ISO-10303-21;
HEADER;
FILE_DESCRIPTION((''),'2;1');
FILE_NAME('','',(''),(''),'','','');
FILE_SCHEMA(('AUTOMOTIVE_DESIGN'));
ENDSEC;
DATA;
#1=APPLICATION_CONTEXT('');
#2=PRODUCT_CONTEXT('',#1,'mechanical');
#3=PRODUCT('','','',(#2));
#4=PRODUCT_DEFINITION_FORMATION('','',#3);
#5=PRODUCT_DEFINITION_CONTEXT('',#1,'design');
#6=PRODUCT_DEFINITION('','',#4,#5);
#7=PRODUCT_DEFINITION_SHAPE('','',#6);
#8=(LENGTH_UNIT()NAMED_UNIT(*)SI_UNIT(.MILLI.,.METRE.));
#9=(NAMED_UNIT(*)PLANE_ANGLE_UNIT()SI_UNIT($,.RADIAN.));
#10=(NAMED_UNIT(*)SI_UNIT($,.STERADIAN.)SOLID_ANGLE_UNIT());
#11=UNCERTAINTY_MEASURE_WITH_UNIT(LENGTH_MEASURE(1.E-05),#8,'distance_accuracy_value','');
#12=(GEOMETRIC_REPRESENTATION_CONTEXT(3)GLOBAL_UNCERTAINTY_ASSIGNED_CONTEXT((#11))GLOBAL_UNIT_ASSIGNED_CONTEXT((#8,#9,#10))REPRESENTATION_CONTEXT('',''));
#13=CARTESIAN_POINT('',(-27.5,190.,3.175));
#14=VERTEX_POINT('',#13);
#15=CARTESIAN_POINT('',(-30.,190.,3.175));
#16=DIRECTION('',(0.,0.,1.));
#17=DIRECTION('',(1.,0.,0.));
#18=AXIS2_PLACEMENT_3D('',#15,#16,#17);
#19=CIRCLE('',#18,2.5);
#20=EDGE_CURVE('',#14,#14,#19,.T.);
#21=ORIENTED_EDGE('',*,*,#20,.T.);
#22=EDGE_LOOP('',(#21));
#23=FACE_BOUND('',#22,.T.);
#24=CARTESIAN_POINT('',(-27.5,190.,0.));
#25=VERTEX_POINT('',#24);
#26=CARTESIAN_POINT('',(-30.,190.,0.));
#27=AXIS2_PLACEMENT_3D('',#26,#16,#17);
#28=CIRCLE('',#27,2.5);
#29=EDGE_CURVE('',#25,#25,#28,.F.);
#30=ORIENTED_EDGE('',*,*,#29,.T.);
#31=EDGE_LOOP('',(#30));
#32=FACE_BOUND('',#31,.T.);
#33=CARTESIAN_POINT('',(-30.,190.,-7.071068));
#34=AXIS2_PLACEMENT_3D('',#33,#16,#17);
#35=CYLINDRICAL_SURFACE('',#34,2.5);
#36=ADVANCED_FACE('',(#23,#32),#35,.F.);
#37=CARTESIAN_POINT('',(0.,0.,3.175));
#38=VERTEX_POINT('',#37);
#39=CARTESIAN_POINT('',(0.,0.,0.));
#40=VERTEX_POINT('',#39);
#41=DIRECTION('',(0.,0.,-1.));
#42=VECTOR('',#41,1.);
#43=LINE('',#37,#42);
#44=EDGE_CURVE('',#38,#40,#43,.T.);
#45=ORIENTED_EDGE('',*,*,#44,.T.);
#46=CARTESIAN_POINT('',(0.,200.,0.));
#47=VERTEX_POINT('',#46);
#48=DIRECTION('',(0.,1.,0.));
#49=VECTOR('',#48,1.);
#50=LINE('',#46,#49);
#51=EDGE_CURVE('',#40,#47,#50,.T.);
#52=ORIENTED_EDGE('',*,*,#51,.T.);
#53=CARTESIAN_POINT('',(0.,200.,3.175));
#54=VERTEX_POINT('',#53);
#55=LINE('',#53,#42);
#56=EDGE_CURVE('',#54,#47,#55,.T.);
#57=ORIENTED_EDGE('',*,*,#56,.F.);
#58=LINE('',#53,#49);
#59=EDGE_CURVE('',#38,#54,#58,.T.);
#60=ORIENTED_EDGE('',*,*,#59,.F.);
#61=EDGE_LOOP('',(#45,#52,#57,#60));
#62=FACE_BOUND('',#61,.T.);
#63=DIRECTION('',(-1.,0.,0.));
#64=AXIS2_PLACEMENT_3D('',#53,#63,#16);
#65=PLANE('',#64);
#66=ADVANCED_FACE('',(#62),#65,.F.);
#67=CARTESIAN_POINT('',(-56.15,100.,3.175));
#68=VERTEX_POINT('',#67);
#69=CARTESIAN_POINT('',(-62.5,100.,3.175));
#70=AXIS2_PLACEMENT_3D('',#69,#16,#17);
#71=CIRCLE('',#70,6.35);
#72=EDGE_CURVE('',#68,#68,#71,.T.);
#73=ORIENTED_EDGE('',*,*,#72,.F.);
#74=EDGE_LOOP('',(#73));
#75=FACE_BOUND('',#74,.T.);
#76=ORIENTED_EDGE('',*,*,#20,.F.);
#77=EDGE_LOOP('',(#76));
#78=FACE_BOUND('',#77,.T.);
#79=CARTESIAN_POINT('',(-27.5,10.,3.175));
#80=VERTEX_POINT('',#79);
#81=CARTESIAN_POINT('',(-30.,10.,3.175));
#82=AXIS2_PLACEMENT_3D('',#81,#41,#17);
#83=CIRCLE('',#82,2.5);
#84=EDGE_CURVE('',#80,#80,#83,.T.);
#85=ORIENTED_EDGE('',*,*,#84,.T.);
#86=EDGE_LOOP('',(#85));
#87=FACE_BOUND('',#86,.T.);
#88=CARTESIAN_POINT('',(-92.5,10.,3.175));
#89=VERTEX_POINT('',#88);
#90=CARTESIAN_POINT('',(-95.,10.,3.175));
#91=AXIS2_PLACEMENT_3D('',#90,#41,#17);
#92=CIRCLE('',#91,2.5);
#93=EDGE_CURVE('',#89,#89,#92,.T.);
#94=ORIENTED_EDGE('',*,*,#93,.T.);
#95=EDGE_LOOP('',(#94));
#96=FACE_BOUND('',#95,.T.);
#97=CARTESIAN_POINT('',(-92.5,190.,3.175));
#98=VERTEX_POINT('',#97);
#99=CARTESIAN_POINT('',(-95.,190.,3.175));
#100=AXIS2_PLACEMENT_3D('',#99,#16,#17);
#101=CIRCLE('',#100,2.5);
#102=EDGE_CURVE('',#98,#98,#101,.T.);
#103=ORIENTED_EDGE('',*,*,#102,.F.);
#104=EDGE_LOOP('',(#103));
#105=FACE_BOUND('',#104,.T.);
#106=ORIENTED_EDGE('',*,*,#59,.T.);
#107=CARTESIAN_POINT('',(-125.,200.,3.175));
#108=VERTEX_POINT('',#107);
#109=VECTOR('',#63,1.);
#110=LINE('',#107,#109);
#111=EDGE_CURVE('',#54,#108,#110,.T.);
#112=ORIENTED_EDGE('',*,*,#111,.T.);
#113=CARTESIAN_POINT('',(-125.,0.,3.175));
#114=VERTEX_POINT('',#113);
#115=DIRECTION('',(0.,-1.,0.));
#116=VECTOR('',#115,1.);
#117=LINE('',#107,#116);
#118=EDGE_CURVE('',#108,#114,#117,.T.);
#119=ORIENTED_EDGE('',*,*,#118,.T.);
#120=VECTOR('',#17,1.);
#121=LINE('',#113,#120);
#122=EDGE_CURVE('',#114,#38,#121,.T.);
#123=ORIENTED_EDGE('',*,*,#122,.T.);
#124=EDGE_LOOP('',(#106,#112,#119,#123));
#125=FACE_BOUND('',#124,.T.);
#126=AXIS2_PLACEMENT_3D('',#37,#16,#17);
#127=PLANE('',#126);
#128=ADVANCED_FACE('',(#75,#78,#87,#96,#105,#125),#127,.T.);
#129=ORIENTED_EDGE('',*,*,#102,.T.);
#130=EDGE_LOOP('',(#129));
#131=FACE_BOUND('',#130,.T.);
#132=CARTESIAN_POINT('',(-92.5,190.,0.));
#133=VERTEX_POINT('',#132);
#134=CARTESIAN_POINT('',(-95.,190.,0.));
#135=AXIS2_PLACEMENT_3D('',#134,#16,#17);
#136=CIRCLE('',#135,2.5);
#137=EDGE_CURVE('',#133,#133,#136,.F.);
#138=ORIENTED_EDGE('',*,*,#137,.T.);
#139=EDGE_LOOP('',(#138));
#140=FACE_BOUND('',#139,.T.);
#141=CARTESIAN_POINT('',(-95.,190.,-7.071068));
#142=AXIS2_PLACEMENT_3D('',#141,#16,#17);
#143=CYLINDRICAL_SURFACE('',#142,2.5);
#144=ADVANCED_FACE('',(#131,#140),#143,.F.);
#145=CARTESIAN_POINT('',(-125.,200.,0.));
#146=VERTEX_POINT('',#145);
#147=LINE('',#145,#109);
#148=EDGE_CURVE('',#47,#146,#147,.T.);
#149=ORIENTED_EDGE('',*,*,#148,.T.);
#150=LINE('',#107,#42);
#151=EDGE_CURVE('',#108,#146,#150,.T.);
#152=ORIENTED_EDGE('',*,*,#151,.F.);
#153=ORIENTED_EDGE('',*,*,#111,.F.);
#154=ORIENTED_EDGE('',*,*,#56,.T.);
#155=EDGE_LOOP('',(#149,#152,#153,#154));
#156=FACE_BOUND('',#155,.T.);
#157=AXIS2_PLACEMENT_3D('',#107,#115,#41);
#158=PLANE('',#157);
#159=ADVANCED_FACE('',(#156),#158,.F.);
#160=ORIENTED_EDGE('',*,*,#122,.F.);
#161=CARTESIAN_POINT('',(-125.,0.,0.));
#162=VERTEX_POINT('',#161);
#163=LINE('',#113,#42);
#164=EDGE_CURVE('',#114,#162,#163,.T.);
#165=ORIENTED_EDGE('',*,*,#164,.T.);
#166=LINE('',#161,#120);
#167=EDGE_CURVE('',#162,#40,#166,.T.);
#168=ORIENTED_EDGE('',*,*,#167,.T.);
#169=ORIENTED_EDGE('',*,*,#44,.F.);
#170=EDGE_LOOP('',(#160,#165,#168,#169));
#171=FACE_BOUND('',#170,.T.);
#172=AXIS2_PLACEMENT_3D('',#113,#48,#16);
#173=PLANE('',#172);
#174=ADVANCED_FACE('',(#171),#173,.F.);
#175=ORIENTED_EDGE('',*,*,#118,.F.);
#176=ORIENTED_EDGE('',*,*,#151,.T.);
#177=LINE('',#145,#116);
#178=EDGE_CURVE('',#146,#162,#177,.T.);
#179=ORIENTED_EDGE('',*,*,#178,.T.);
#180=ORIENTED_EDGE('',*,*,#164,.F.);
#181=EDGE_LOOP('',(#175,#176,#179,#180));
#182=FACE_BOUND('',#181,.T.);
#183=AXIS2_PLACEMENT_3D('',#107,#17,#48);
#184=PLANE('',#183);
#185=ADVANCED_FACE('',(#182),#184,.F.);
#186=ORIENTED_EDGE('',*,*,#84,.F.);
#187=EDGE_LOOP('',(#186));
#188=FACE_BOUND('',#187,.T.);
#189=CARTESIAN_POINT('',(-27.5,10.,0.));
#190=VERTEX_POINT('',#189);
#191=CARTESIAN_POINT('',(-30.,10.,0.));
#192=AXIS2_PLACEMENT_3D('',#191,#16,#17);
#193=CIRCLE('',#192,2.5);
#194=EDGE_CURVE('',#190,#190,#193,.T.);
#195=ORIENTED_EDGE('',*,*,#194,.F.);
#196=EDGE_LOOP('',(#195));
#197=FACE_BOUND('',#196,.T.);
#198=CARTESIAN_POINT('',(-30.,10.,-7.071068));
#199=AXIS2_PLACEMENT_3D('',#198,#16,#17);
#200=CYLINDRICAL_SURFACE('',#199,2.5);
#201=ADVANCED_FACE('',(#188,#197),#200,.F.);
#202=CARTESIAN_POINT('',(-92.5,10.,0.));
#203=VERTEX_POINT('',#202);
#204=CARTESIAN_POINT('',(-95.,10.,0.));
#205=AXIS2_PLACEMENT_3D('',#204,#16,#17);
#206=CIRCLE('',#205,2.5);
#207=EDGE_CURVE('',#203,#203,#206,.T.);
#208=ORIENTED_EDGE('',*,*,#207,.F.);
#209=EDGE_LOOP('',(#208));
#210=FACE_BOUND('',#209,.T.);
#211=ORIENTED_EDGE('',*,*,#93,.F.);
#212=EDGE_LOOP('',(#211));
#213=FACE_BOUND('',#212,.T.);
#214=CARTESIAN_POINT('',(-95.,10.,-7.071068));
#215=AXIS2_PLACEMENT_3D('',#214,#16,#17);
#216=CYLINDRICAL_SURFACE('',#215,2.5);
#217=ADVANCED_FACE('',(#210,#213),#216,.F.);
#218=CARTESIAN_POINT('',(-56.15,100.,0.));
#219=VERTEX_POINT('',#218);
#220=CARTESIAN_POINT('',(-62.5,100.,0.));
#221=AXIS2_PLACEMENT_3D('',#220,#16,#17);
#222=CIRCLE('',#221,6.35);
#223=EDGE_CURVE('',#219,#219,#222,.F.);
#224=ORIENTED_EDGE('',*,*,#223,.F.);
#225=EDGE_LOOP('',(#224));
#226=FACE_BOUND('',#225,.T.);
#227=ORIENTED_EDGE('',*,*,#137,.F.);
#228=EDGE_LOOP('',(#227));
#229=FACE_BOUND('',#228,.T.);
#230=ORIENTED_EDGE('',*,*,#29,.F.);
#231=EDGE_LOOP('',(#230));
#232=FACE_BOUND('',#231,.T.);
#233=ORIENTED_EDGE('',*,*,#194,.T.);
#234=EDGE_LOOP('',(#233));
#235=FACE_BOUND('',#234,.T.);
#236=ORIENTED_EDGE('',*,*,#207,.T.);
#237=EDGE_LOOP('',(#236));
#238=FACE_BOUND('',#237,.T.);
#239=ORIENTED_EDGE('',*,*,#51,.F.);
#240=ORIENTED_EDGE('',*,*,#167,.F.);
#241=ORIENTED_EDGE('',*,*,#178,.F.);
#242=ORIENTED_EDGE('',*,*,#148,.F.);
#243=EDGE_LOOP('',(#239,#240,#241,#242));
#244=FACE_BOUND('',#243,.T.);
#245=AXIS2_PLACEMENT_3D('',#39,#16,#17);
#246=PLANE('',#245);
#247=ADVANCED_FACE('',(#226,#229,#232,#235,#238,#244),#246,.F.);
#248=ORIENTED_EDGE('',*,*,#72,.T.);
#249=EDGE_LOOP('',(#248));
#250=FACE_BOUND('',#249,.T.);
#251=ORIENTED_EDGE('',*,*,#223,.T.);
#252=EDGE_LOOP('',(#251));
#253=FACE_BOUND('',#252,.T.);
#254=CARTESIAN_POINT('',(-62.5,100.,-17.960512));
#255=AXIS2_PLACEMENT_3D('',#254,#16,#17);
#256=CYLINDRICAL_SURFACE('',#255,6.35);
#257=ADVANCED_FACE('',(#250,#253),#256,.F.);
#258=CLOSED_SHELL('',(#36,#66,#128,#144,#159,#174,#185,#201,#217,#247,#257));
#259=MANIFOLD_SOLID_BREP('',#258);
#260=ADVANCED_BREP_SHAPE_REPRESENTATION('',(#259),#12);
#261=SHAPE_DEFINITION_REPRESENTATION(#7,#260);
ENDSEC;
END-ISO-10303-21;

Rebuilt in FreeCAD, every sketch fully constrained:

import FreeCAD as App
import Part
import Sketcher

V = App.Vector

doc = App.newDocument("Part")
body = doc.addObject("PartDesign::Body", "Body")

# Sketch on XY plane
sketch1 = body.newObject("Sketcher::SketchObject", "Sketch")
sketch1.AttachmentSupport = (doc.getObject("XY_Plane"), [""])
sketch1.MapMode = "FlatFace"
sketch1.addGeometry([
    Part.LineSegment(V(-125, 200, 0), V(-125, 0, 0)),
    Part.LineSegment(V(-125, 0, 0), V(0, 0, 0)),
    Part.LineSegment(V(0, 0, 0), V(0, 200, 0)),
    Part.LineSegment(V(0, 200, 0), V(-125, 200, 0)),
], False)
sketch1.addConstraint([
    Sketcher.Constraint("Coincident", 0, 2, 1, 1),
    Sketcher.Constraint("Coincident", 1, 2, 2, 1),
    Sketcher.Constraint("Coincident", 2, 2, 3, 1),
    Sketcher.Constraint("Coincident", 3, 2, 0, 1),
    Sketcher.Constraint("Vertical", 0),
    Sketcher.Constraint("Horizontal", 1),
    Sketcher.Constraint("Vertical", 2),
    Sketcher.Constraint("Horizontal", 3),
    Sketcher.Constraint("Coincident", 1, 2, -1, 1),
    Sketcher.Constraint("DistanceX", 1, 1, 1, 2, 125.0),
    Sketcher.Constraint("DistanceY", 0, 2, 0, 1, 200.0),
])
pad1 = body.newObject("PartDesign::Pad", "Pad")
pad1.Profile = sketch1
pad1.Length = 3.175

# Sketch on XY plane
sketch2 = body.newObject("Sketcher::SketchObject", "Sketch001")
sketch2.AttachmentSupport = (doc.getObject("XY_Plane"), [""])
sketch2.MapMode = "FlatFace"
sketch2.AttachmentOffset = App.Placement(V(0, 0, 3.175), App.Rotation())
sketch2.addGeometry([
    Part.Circle(V(-95, 190, 0), V(0, 0, 1), 2.5),
    Part.Circle(V(-30, 190, 0), V(0, 0, 1), 2.5),
], False)
sketch2.addConstraint([
    Sketcher.Constraint("Equal", 0, 1),
    Sketcher.Constraint("Horizontal", 0, 3, 1, 3),
    Sketcher.Constraint("Diameter", 0, 5.0),
    Sketcher.Constraint("DistanceX", 0, 3, -1, 1, 95.0),
    Sketcher.Constraint("DistanceY", -1, 1, 0, 3, 190.0),
    Sketcher.Constraint("DistanceX", 1, 3, -1, 1, 30.0),
])
pocket1 = body.newObject("PartDesign::Pocket", "Pocket")
pocket1.Profile = sketch2
pocket1.Length = 3.175
doc.recompute()

datumplane = body.newObject("PartDesign::Plane", "DatumPlane")
datumplane.AttachmentSupport = (doc.getObject("XZ_Plane"), [""])
datumplane.MapMode = "FlatFace"
datumplane.AttachmentOffset = App.Placement(V(0, 0, -100), App.Rotation())
mirrored = body.newObject("PartDesign::Mirrored", "Mirrored")
mirrored.Originals = [pocket1]
mirrored.MirrorPlane = (datumplane, [""])
body.Tip = mirrored

# Sketch on XY plane
sketch3 = body.newObject("Sketcher::SketchObject", "Sketch002")
sketch3.AttachmentSupport = (doc.getObject("XY_Plane"), [""])
sketch3.MapMode = "FlatFace"
sketch3.AttachmentOffset = App.Placement(V(0, 0, 3.175), App.Rotation())
sketch3.addGeometry(Part.Circle(V(-62, 100, 0), V(0, 0, 1), 6), False)
sketch3.addConstraint([
    Sketcher.Constraint("Diameter", 0, 12.7),
    Sketcher.Constraint("DistanceY", -1, 1, 0, 3, 100.0),
    Sketcher.Constraint("DistanceX", 0, 3, -1, 1, 62.5),
])
pocket2 = body.newObject("PartDesign::Pocket", "Pocket001")
pocket2.Profile = sketch3
pocket2.Length = 3.175

doc.recompute()
